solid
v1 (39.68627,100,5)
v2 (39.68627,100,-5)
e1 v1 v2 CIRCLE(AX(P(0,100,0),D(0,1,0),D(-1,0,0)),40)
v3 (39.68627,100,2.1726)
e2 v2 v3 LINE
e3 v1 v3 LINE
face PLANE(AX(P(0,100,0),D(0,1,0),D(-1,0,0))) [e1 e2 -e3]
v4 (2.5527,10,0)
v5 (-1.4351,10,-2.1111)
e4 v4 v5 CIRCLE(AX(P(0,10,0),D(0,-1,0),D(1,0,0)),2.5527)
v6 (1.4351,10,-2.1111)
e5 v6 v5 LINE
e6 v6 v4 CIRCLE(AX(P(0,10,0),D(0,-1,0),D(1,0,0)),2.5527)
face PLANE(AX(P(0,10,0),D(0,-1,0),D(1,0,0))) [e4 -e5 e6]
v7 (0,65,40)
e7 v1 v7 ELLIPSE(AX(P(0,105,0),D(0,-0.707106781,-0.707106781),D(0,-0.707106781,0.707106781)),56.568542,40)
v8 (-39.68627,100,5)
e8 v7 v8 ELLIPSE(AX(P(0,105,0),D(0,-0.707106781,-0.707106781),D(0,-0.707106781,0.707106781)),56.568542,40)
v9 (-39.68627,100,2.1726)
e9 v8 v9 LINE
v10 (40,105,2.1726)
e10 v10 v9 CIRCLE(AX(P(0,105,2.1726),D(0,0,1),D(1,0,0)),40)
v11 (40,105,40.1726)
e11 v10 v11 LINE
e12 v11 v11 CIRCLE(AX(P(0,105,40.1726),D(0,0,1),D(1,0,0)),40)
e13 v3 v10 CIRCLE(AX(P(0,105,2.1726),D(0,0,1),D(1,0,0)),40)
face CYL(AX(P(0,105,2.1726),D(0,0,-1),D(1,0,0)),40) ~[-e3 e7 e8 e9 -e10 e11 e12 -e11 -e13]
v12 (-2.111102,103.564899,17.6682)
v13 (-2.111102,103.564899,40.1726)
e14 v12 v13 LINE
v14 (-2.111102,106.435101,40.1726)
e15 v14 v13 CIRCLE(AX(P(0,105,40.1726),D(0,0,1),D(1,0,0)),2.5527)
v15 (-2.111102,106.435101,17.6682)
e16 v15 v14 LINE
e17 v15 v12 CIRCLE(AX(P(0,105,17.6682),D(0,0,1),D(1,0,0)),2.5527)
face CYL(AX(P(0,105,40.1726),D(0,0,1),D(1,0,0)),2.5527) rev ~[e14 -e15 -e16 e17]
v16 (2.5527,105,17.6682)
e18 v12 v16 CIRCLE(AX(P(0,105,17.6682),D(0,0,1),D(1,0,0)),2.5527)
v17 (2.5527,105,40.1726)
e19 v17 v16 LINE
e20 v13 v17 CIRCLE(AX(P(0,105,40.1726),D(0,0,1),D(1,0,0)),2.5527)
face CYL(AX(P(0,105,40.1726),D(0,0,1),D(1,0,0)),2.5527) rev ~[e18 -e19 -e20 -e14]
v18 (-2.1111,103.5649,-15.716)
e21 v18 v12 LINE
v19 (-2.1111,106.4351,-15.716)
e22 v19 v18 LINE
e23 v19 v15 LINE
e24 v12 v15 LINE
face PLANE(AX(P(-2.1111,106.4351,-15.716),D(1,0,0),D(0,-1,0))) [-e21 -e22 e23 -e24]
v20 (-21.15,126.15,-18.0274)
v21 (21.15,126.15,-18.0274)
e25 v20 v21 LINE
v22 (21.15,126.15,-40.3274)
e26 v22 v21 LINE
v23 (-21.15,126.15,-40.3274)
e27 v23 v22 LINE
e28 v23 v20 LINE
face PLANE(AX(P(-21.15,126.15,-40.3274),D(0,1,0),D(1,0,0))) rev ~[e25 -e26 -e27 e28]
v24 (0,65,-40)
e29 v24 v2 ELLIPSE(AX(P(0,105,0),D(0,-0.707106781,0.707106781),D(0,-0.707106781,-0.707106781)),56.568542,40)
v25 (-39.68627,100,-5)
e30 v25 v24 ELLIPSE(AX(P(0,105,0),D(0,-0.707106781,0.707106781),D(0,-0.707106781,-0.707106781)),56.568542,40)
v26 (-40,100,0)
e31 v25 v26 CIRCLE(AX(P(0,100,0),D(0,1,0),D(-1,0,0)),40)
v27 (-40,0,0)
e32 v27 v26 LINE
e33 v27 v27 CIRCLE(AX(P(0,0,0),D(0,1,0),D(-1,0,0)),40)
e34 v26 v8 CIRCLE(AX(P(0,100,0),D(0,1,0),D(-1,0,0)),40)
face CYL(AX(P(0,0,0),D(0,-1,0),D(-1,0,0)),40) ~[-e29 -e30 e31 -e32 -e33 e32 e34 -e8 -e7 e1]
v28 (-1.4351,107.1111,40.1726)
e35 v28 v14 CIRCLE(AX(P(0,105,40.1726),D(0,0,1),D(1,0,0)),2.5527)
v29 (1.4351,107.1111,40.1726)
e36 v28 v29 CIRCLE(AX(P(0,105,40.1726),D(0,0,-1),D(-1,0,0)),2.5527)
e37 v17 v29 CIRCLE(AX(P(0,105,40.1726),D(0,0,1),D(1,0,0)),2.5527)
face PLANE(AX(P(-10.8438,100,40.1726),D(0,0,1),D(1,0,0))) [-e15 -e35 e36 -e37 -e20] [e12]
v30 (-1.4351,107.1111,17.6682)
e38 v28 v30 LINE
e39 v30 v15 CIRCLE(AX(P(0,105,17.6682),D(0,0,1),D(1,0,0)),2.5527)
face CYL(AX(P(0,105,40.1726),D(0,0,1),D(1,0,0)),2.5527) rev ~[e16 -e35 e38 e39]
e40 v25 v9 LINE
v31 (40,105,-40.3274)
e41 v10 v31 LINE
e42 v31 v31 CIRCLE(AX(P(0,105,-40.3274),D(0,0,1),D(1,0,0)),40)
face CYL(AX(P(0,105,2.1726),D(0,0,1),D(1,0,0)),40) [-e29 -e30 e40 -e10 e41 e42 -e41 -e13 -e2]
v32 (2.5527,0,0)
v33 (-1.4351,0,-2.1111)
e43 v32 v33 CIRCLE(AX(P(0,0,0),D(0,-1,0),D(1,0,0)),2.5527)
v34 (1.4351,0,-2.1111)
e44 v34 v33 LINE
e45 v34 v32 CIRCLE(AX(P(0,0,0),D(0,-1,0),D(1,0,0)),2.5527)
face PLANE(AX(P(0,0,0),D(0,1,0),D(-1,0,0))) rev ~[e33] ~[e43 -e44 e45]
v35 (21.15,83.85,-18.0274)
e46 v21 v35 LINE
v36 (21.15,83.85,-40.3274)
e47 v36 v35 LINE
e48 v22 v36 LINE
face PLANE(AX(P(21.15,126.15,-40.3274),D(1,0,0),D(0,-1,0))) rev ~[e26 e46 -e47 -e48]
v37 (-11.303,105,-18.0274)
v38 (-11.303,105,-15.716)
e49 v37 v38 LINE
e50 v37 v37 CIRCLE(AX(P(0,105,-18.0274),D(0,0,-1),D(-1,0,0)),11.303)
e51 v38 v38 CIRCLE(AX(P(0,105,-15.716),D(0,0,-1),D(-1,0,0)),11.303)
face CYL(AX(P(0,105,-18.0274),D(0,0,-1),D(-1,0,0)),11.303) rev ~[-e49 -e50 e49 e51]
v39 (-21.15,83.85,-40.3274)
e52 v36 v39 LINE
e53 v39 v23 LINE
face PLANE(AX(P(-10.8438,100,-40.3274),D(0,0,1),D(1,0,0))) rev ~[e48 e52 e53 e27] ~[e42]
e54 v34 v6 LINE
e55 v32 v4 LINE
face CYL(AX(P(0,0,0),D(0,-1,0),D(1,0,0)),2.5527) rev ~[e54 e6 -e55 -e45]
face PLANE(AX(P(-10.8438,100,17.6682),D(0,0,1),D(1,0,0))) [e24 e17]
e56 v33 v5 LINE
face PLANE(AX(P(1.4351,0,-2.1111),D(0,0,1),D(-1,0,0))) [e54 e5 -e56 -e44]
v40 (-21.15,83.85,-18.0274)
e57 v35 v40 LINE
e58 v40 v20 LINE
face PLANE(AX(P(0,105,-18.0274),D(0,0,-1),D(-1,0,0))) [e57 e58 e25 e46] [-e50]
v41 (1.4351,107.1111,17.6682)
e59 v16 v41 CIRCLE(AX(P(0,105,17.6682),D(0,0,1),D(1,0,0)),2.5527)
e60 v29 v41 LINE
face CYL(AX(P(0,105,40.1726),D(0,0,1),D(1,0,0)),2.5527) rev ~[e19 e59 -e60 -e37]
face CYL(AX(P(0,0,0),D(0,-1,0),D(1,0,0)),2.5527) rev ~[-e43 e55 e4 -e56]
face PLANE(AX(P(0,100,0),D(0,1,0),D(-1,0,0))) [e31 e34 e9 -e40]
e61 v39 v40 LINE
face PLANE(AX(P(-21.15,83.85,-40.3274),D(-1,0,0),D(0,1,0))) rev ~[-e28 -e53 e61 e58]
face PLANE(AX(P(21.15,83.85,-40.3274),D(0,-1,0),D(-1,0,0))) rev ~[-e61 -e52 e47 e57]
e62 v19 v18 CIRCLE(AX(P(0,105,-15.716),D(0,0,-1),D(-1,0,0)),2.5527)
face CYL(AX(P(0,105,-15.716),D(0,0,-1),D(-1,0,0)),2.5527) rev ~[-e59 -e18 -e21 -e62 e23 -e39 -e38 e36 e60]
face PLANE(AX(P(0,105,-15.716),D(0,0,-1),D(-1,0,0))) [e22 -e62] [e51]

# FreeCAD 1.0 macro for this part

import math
import FreeCAD as App
import Part
import Sketcher
from FreeCAD import Vector
Q = App.Units.Quantity


def add_polygon(sketch, points):
    """Adds a closed chain of lines whose ends are joined by coincident constraints."""
    first, n = sketch.GeometryCount, len(points)
    for a, b in zip(points, points[1:] + points[:1]):
        sketch.addGeometry(Part.LineSegment(App.Vector(*a, 0), App.Vector(*b, 0)), False)
    for i in range(n):
        sketch.addConstraint(Sketcher.Constraint("Coincident", first + i, 2, first + (i + 1) % n, 1))

doc = App.newDocument("Part")
body = doc.addObject("PartDesign::Body", "Body")

# Sketch on XZ plane
sketch1 = body.newObject("Sketcher::SketchObject", "Sketch")
sketch1.AttachmentSupport = (doc.getObject("XZ_Plane"), [""])
sketch1.MapMode = "FlatFace"
sketch1.addGeometry(Part.Circle(Vector(0, 0, 0), Vector(0, 0, 1), 40), False)
sketch1.addConstraint(Sketcher.Constraint("Coincident", 0, 3, -1, 1))
sketch1.addConstraint(Sketcher.Constraint("Diameter", 0, Q("3.1496 in")))
pad1 = body.newObject("PartDesign::Pad", "Pad")
pad1.Profile = sketch1
pad1.Length = Q("3.9370079 in")
pad1.Reversed = True

# Sketch on XZ plane
sketch2 = body.newObject("Sketcher::SketchObject", "Sketch001")
sketch2.AttachmentSupport = (doc.getObject("XZ_Plane"), [""])
sketch2.MapMode = "FlatFace"
sketch2.AttachmentOffset = App.Placement(Vector(0, 0, -3.9370079 * 25.4), App.Rotation())
add_polygon(sketch2, [(0, -5), (-11, -5), (-11, 2), (0, 2)])  # lines 0-3
sketch2.addConstraint(Sketcher.Constraint("Horizontal", 0))
sketch2.addConstraint(Sketcher.Constraint("Vertical", 1))
sketch2.addConstraint(Sketcher.Constraint("Horizontal", 2))
sketch2.addConstraint(Sketcher.Constraint("Vertical", 3))
sketch2.addConstraint(Sketcher.Constraint("PointOnObject", 2, 2, -2))
sketch2.addConstraint(Sketcher.Constraint("DistanceX", 0, 2, 0, 1, Q("10.8438 mm")))
sketch2.addConstraint(Sketcher.Constraint("DistanceY", 1, 1, 1, 2, Q("7.1542 mm")))
sketch2.addConstraint(Sketcher.Constraint("DistanceY", 0, 2, -1, 1, Q("4.9816 mm")))
pad2 = body.newObject("PartDesign::Pad", "Pad001")
pad2.Profile = sketch2
pad2.Length = Q("0.3937008 in")
pad2.Reversed = True

# Sketch on XY plane
sketch3 = body.newObject("Sketcher::SketchObject", "Sketch002")
sketch3.AttachmentSupport = (doc.getObject("XY_Plane"), [""])
sketch3.MapMode = "FlatFace"
sketch3.AttachmentOffset = App.Placement(Vector(0, 0, 2.1726), App.Rotation())
sketch3.addGeometry(Part.Circle(Vector(0, 105, 0), Vector(0, 0, 1), 40), False)
sketch3.addConstraint(Sketcher.Constraint("PointOnObject", 0, 3, -2))
sketch3.addConstraint(Sketcher.Constraint("Diameter", 0, Q("3.1496 in")))
sketch3.addConstraint(Sketcher.Constraint("DistanceY", -1, 1, 0, 3, Q("105 mm")))
pad3 = body.newObject("PartDesign::Pad", "Pad002")
pad3.Profile = sketch3
pad3.Type = "TwoLengths"
pad3.Length = 38
pad3.Length2 = 42.5

# Sketch on XY plane
sketch4 = body.newObject("Sketcher::SketchObject", "Sketch003")
sketch4.AttachmentSupport = (doc.getObject("XY_Plane"), [""])
sketch4.MapMode = "FlatFace"
sketch4.AttachmentOffset = App.Placement(Vector(0, 0, 1.5815984 * 25.4), App.Rotation())
sketch4.addGeometry(Part.ArcOfCircle(Part.Circle(Vector(0, 105, 0), Vector(0, 0, 1), 2.6), math.radians(124), math.radians(416)), False)
sketch4.addGeometry(Part.LineSegment(Vector(-1.4, 107.1, 0), Vector(1.4, 107.1, 0)), False)
sketch4.addConstraint(Sketcher.Constraint("Coincident", 0, 1, 1, 1))
sketch4.addConstraint(Sketcher.Constraint("Coincident", 1, 2, 0, 2))
sketch4.addConstraint(Sketcher.Constraint("Horizontal", 1))
sketch4.addConstraint(Sketcher.Constraint("PointOnObject", 0, 3, -2))
sketch4.addConstraint(Sketcher.Constraint("Radius", 0, Q("0.1005 in")))
sketch4.addConstraint(Sketcher.Constraint("DistanceX", 1, 1, 1, 2, Q("0.113 in")))
sketch4.addConstraint(Sketcher.Constraint("DistanceY", -1, 1, 0, 3, Q("105 mm")))
pocket1 = body.newObject("PartDesign::Pocket", "Pocket")
pocket1.Profile = sketch4
pocket1.Length = Q("0.886 in")

# Sketch on XZ plane
sketch5 = body.newObject("Sketcher::SketchObject", "Sketch004")
sketch5.AttachmentSupport = (doc.getObject("XZ_Plane"), [""])
sketch5.MapMode = "FlatFace"
sketch5.addGeometry(Part.ArcOfCircle(Part.Circle(Vector(0, 0, 0), Vector(0, 0, 1), 2.6), math.radians(-56), math.radians(236)), False)
sketch5.addGeometry(Part.LineSegment(Vector(1.4, -2.1, 0), Vector(-1.4, -2.1, 0)), False)
sketch5.addConstraint(Sketcher.Constraint("Coincident", 0, 1, 1, 1))
sketch5.addConstraint(Sketcher.Constraint("Coincident", 1, 2, 0, 2))
sketch5.addConstraint(Sketcher.Constraint("Horizontal", 1))
sketch5.addConstraint(Sketcher.Constraint("Coincident", 0, 3, -1, 1))
sketch5.addConstraint(Sketcher.Constraint("Radius", 0, Q("0.1005 in")))
sketch5.addConstraint(Sketcher.Constraint("DistanceX", 1, 2, 1, 1, Q("0.113 in")))
pocket2 = body.newObject("PartDesign::Pocket", "Pocket001")
pocket2.Profile = sketch5
pocket2.Length = Q("0.3937008 in")

# Sketch on XY plane
sketch6 = body.newObject("Sketcher::SketchObject", "Sketch005")
sketch6.AttachmentSupport = (doc.getObject("XY_Plane"), [""])
sketch6.MapMode = "FlatFace"
sketch6.AttachmentOffset = App.Placement(Vector(0, 0, -1.5876929 * 25.4), App.Rotation())
add_polygon(sketch6, [(21, 126), (21, 84), (-21, 84), (-21, 126)])  # lines 0-3
sketch6.addConstraint(Sketcher.Constraint("Vertical", 0))
sketch6.addConstraint(Sketcher.Constraint("Horizontal", 1))
sketch6.addConstraint(Sketcher.Constraint("Vertical", 2))
sketch6.addConstraint(Sketcher.Constraint("Horizontal", 3))
sketch6.addConstraint(Sketcher.Constraint("Equal", 3, 0))
sketch6.addConstraint(Sketcher.Constraint("DistanceX", 1, 2, 1, 1, Q("42.3 mm")))
sketch6.addConstraint(Sketcher.Constraint("DistanceX", -1, 1, 0, 2, Q("21.15 mm")))
sketch6.addConstraint(Sketcher.Constraint("DistanceY", -1, 1, 0, 2, Q("83.85 mm")))
pocket3 = body.newObject("PartDesign::Pocket", "Pocket002")
pocket3.Profile = sketch6
pocket3.Length = 22.3
pocket3.Reversed = True

# Sketch on XY plane
sketch7 = body.newObject("Sketcher::SketchObject", "Sketch006")
sketch7.AttachmentSupport = (doc.getObject("XY_Plane"), [""])
sketch7.MapMode = "FlatFace"
sketch7.AttachmentOffset = App.Placement(Vector(0, 0, -18.0274), App.Rotation())
sketch7.addGeometry(Part.Circle(Vector(0, 105, 0), Vector(0, 0, 1), 11), False)
sketch7.addConstraint(Sketcher.Constraint("PointOnObject", 0, 3, -2))
sketch7.addConstraint(Sketcher.Constraint("Diameter", 0, Q("0.89 in")))
sketch7.addConstraint(Sketcher.Constraint("DistanceY", -1, 1, 0, 3, Q("105 mm")))
pocket4 = body.newObject("PartDesign::Pocket", "Pocket003")
pocket4.Profile = sketch7
pocket4.Length = Q("0.091 in")
pocket4.Reversed = True

# Sketch on XY plane
sketch8 = body.newObject("Sketcher::SketchObject", "Sketch007")
sketch8.AttachmentSupport = (doc.getObject("XY_Plane"), [""])
sketch8.MapMode = "FlatFace"
sketch8.AttachmentOffset = App.Placement(Vector(0, 0, -15.716), App.Rotation())
sketch8.addGeometry(Part.LineSegment(Vector(-2.1, 103.6, 0), Vector(-2.1, 106.4, 0)), False)
sketch8.addGeometry(Part.ArcOfCircle(Part.Circle(Vector(0, 105, 0), Vector(0, 0, 1), 2.6), math.radians(-146), math.radians(146)), False)
sketch8.addConstraint(Sketcher.Constraint("Coincident", 0, 1, 1, 1))
sketch8.addConstraint(Sketcher.Constraint("Coincident", 1, 2, 0, 2))
sketch8.addConstraint(Sketcher.Constraint("Vertical", 0))
sketch8.addConstraint(Sketcher.Constraint("PointOnObject", 1, 3, -2))
sketch8.addConstraint(Sketcher.Constraint("Radius", 1, Q("0.1005 in")))
sketch8.addConstraint(Sketcher.Constraint("DistanceY", 0, 1, 0, 2, Q("0.113 in")))
sketch8.addConstraint(Sketcher.Constraint("DistanceY", -1, 1, 1, 3, Q("105 mm")))
pocket5 = body.newObject("PartDesign::Pocket", "Pocket004")
pocket5.Profile = sketch8
pocket5.Length = Q("2.3622047 in")
pocket5.Reversed = True

doc.recompute()
